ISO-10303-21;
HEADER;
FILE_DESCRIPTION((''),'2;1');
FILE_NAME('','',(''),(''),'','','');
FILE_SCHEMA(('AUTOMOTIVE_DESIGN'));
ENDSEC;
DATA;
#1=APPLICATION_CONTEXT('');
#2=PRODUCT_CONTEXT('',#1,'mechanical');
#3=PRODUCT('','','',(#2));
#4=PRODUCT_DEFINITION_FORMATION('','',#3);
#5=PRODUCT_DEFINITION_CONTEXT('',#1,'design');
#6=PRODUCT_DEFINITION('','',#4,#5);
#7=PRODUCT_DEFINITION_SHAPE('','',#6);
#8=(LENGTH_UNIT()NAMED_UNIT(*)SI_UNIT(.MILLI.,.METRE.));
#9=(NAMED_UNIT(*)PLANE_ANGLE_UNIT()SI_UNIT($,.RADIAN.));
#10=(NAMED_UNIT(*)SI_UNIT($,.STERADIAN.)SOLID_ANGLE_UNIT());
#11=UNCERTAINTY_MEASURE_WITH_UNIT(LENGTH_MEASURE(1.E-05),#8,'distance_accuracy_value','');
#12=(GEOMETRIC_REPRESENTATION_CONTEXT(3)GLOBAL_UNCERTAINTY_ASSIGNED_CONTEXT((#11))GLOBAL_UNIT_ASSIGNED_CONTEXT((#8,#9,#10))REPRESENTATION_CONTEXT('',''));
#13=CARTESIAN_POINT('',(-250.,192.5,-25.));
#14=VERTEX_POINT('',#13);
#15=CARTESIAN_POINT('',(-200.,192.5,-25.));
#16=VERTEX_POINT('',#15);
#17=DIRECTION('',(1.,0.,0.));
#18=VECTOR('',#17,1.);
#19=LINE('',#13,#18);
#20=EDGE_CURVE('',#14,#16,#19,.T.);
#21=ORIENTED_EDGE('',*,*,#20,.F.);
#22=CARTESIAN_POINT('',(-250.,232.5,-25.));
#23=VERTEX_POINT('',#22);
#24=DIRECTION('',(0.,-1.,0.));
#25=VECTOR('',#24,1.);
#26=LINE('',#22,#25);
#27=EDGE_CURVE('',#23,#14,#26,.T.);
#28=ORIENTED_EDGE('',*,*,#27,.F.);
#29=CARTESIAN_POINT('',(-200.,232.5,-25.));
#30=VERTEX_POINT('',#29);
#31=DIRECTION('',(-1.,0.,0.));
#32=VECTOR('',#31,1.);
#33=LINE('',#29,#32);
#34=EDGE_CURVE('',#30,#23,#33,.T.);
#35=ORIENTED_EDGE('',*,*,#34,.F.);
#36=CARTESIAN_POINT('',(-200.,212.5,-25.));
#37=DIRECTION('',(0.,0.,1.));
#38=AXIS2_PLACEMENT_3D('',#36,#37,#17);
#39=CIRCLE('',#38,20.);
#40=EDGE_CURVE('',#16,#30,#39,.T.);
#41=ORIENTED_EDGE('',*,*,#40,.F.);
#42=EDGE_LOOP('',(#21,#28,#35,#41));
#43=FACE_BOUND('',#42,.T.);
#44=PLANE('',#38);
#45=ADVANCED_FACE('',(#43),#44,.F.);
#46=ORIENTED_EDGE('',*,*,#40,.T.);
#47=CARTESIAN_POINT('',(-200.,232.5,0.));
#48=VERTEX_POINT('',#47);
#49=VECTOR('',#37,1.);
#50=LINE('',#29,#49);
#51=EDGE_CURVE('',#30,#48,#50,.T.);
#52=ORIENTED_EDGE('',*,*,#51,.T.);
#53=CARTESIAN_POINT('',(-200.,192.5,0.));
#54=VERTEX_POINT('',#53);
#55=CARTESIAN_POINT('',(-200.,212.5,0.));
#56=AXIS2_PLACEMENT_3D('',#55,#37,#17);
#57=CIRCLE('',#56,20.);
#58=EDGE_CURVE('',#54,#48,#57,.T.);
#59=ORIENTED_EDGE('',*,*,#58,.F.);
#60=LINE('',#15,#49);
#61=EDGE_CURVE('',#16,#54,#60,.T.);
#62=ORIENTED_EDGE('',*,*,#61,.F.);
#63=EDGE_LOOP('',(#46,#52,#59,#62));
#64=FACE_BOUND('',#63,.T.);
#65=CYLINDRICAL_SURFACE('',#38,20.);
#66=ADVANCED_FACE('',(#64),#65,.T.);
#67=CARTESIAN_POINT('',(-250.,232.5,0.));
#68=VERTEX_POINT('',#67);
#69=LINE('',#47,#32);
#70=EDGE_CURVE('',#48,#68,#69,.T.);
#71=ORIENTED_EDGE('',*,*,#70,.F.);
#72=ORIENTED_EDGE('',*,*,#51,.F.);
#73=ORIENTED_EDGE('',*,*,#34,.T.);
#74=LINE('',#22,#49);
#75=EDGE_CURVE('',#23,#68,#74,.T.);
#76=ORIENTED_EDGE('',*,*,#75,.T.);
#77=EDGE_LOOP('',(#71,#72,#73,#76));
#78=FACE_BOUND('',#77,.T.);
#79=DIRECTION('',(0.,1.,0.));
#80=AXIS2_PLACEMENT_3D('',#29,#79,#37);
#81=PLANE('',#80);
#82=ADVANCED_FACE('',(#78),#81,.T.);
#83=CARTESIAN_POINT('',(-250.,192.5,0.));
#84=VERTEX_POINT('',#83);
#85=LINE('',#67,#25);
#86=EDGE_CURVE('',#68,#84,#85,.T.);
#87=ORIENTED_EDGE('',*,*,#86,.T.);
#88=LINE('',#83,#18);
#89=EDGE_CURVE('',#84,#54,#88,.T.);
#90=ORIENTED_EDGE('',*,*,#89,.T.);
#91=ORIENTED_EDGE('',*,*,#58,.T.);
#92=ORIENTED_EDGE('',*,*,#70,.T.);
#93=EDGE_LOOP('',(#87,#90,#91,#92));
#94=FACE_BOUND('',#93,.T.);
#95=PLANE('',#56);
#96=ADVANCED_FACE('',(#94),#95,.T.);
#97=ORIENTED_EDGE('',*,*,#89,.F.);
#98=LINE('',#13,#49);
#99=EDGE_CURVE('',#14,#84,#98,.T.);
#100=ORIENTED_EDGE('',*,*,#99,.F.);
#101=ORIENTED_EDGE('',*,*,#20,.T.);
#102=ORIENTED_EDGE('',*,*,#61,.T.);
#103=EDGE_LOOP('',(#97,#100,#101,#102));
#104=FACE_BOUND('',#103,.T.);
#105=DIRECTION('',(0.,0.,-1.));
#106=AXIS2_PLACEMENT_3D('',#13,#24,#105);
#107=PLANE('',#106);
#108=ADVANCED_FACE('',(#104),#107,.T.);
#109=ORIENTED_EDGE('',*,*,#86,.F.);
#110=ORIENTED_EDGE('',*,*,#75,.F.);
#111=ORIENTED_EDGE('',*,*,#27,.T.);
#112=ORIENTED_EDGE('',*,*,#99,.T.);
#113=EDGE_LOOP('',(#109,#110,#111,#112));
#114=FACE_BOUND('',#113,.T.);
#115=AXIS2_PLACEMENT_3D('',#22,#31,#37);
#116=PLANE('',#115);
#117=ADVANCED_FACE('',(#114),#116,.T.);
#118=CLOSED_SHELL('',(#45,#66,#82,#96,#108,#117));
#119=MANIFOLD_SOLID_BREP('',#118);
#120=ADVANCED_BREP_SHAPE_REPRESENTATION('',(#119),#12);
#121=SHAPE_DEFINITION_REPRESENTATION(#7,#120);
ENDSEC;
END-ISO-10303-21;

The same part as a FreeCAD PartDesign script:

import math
import FreeCAD as App
import Part
import Sketcher

V = App.Vector
Q = App.Units.Quantity

doc = App.newDocument("Part")
body = doc.addObject("PartDesign::Body", "Body")

# Sketch on XY plane
sketch1 = body.newObject("Sketcher::SketchObject", "Sketch")
sketch1.AttachmentSupport = (doc.getObject("XY_Plane"), [""])
sketch1.MapMode = "FlatFace"
sketch1.addGeometry([
    Part.LineSegment(V(-200, 232, 0), V(-250, 232, 0)),
    Part.LineSegment(V(-250, 232, 0), V(-250, 192, 0)),
    Part.LineSegment(V(-250, 192, 0), V(-200, 192, 0)),
    Part.ArcOfCircle(Part.Circle(V(-200, 212, 0), V(0, 0, 1), 20), math.radians(-90), math.radians(90)),
], False)
sketch1.addConstraint([
    Sketcher.Constraint("Coincident", 0, 2, 1, 1),
    Sketcher.Constraint("Coincident", 1, 2, 2, 1),
    Sketcher.Constraint("Tangent", 2, 2, 3, 1),
    Sketcher.Constraint("Tangent", 3, 2, 0, 1),
    Sketcher.Constraint("Horizontal", 0),
    Sketcher.Constraint("Vertical", 1),
    Sketcher.Constraint("Horizontal", 2),
    Sketcher.Constraint("Radius", 3, Q("20 mm")),
    Sketcher.Constraint("DistanceX", 0, 2, 0, 1, Q("50 mm")),
    Sketcher.Constraint("DistanceX", 3, 3, -1, 1, Q("200 mm")),
    Sketcher.Constraint("DistanceY", -1, 1, 3, 3, Q("212.5 mm")),
])
pad1 = body.newObject("PartDesign::Pad", "Pad")
pad1.Profile = sketch1
pad1.Length = 25
pad1.Reversed = True

doc.recompute()
